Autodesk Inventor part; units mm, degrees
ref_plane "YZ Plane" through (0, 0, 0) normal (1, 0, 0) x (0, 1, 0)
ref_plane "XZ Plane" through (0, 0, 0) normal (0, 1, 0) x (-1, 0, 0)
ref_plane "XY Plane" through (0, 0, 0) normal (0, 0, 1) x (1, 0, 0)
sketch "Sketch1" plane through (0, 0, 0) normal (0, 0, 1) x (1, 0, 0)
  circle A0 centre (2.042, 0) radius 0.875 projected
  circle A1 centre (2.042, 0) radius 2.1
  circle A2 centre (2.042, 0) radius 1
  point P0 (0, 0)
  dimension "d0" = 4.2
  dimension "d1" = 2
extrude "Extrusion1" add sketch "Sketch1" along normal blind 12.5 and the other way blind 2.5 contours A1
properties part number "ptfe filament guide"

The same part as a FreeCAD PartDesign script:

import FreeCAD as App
import Part
import Sketcher

V = App.Vector

doc = App.newDocument("Part")
body = doc.addObject("PartDesign::Body", "Body")

sketch1 = doc.addObject("Sketcher::SketchObject", "Sketch")
body.addObject(sketch1)
sketch1.AttachmentSupport = (doc.XY_Plane, [""])
sketch1.MapMode = "FlatFace"
sketch1.addGeometry([
    Part.Circle(V(2, 0, 0), V(0, 0, 1), 2.1),
    Part.Circle(V(2, 0, 0), V(0, 0, 1), 1),
], False)
sketch1.addConstraint([
    Sketcher.Constraint("Coincident", 1, 3, 0, 3),
    Sketcher.Constraint("PointOnObject", 0, 3, -1),
    Sketcher.Constraint("Diameter", 1, 2.0),
    Sketcher.Constraint("Diameter", 0, 4.2),
    Sketcher.Constraint("DistanceX", -1, 1, 0, 3, 2.042),
])
pad1 = doc.addObject("PartDesign::Pad", "Pad")
body.addObject(pad1)
pad1.Profile = sketch1
pad1.Type = "TwoLengths"
pad1.Length = 12.5
pad1.Length2 = 2.5

doc.recompute()
